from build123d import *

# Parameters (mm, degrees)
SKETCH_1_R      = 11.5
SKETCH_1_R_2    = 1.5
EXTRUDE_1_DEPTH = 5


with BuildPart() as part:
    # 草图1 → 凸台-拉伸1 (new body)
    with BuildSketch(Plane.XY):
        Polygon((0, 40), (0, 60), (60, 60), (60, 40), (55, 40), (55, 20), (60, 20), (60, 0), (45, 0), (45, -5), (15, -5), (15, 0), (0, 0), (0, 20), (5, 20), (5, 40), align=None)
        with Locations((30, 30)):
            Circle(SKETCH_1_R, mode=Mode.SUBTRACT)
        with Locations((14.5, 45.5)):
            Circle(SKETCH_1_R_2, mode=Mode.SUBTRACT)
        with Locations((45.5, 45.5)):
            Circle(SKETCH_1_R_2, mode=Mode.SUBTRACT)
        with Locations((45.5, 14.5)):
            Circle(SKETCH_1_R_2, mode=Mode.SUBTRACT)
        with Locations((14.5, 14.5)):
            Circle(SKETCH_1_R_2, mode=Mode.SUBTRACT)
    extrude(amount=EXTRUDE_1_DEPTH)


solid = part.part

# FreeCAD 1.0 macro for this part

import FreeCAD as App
import Part
import Sketcher

V = App.Vector


def add_polygon(sketch, points):
    """Adds a closed chain of lines whose ends are joined by coincident constraints."""
    first, n = sketch.GeometryCount, len(points)
    for a, b in zip(points, points[1:] + points[:1]):
        sketch.addGeometry(Part.LineSegment(App.Vector(*a, 0), App.Vector(*b, 0)), False)
    for i in range(n):
        sketch.addConstraint(Sketcher.Constraint("Coincident", first + i, 2, first + (i + 1) % n, 1))

doc = App.newDocument("Part")
body = doc.addObject("PartDesign::Body", "Body")

sketch1 = doc.addObject("Sketcher::SketchObject", "Sketch")
body.addObject(sketch1)
sketch1.AttachmentSupport = (doc.XY_Plane, [""])
sketch1.MapMode = "FlatFace"
add_polygon(sketch1, [(0, 60), (0, 40), (5, 40), (5, 20), (0, 20), (0, 0), (15, 0), (15, -5), (45, -5), (45, 0), (60, 0), (60, 20), (55, 20), (55, 40), (60, 40), (60, 60)])
sketch1.addGeometry(Part.Circle(V(45.5, 14.5, 0), V(0, 0, 1), 1.5), False)
sketch1.addGeometry(Part.Circle(V(14.5, 14.5, 0), V(0, 0, 1), 1.5), False)
sketch1.addGeometry(Part.Circle(V(45.5, 45.5, 0), V(0, 0, 1), 1.5), False)
sketch1.addGeometry(Part.Circle(V(30, 30, 0), V(0, 0, 1), 11.5), False)
sketch1.addGeometry(Part.Circle(V(14.5, 45.5, 0), V(0, 0, 1), 1.5), False)
sketch1.addConstraint(Sketcher.Constraint("Vertical", 0))
sketch1.addConstraint(Sketcher.Constraint("Horizontal", 1))
sketch1.addConstraint(Sketcher.Constraint("Vertical", 2))
sketch1.addConstraint(Sketcher.Constraint("Horizontal", 3))
sketch1.addConstraint(Sketcher.Constraint("Vertical", 4))
sketch1.addConstraint(Sketcher.Constraint("Horizontal", 5))
sketch1.addConstraint(Sketcher.Constraint("Vertical", 6))
sketch1.addConstraint(Sketcher.Constraint("Horizontal", 7))
sketch1.addConstraint(Sketcher.Constraint("Vertical", 8))
sketch1.addConstraint(Sketcher.Constraint("Horizontal", 9))
sketch1.addConstraint(Sketcher.Constraint("Vertical", 10))
sketch1.addConstraint(Sketcher.Constraint("Horizontal", 11))
sketch1.addConstraint(Sketcher.Constraint("Vertical", 12))
sketch1.addConstraint(Sketcher.Constraint("Horizontal", 13))
sketch1.addConstraint(Sketcher.Constraint("Vertical", 14))
sketch1.addConstraint(Sketcher.Constraint("Horizontal", 15))
sketch1.addConstraint(Sketcher.Constraint("Coincident", 4, 2, -1, 1))
sketch1.addConstraint(Sketcher.Constraint("Equal", 16, 17))
sketch1.addConstraint(Sketcher.Constraint("Equal", 17, 18))
sketch1.addConstraint(Sketcher.Constraint("Equal", 18, 20))
sketch1.addConstraint(Sketcher.Constraint("PointOnObject", 0, 2, -2))
sketch1.addConstraint(Sketcher.Constraint("PointOnObject", 8, 2, -1))
sketch1.addConstraint(Sketcher.Constraint("Horizontal", 16, 3, 17, 3))
sketch1.addConstraint(Sketcher.Constraint("Horizontal", 18, 3, 20, 3))
sketch1.addConstraint(Sketcher.Constraint("Horizontal", 3, 2, 10, 2))
sketch1.addConstraint(Sketcher.Constraint("Horizontal", 1, 2, 12, 2))
sketch1.addConstraint(Sketcher.Constraint("Vertical", 16, 3, 18, 3))
sketch1.addConstraint(Sketcher.Constraint("Vertical", 17, 3, 20, 3))
sketch1.addConstraint(Sketcher.Constraint("Vertical", 10, 2, 13, 2))
sketch1.addConstraint(Sketcher.Constraint("Equal", 5, 9))
sketch1.addConstraint(Sketcher.Constraint("Equal", 3, 11))
sketch1.addConstraint(Sketcher.Constraint("Equal", 0, 2))
sketch1.addConstraint(Sketcher.Constraint("Equal", 2, 4))
sketch1.addConstraint(Sketcher.Constraint("Equal", 13, 6))
sketch1.addConstraint(Sketcher.Constraint("Diameter", 16, 3.0))
sketch1.addConstraint(Sketcher.Constraint("Diameter", 19, 23.0))
sketch1.addConstraint(Sketcher.Constraint("DistanceX", 1, 1, 1, 2, 5.0))
sketch1.addConstraint(Sketcher.Constraint("DistanceX", 5, 1, 5, 2, 15.0))
sketch1.addConstraint(Sketcher.Constraint("DistanceX", 7, 1, 7, 2, 30.0))
sketch1.addConstraint(Sketcher.Constraint("DistanceY", 0, 2, 0, 1, 20.0))
sketch1.addConstraint(Sketcher.Constraint("DistanceX", -1, 1, 19, 3, 30.0))
sketch1.addConstraint(Sketcher.Constraint("DistanceY", -1, 1, 19, 3, 30.0))
sketch1.addConstraint(Sketcher.Constraint("DistanceX", 17, 3, 16, 3, 31.0))
sketch1.addConstraint(Sketcher.Constraint("DistanceY", 16, 3, 18, 3, 31.0))
sketch1.addConstraint(Sketcher.Constraint("DistanceX", -1, 1, 16, 3, 45.5))
sketch1.addConstraint(Sketcher.Constraint("DistanceY", -1, 1, 16, 3, 14.5))
pad1 = doc.addObject("PartDesign::Pad", "Pad")
body.addObject(pad1)
pad1.Profile = sketch1
pad1.Length = 5

doc.recompute()
